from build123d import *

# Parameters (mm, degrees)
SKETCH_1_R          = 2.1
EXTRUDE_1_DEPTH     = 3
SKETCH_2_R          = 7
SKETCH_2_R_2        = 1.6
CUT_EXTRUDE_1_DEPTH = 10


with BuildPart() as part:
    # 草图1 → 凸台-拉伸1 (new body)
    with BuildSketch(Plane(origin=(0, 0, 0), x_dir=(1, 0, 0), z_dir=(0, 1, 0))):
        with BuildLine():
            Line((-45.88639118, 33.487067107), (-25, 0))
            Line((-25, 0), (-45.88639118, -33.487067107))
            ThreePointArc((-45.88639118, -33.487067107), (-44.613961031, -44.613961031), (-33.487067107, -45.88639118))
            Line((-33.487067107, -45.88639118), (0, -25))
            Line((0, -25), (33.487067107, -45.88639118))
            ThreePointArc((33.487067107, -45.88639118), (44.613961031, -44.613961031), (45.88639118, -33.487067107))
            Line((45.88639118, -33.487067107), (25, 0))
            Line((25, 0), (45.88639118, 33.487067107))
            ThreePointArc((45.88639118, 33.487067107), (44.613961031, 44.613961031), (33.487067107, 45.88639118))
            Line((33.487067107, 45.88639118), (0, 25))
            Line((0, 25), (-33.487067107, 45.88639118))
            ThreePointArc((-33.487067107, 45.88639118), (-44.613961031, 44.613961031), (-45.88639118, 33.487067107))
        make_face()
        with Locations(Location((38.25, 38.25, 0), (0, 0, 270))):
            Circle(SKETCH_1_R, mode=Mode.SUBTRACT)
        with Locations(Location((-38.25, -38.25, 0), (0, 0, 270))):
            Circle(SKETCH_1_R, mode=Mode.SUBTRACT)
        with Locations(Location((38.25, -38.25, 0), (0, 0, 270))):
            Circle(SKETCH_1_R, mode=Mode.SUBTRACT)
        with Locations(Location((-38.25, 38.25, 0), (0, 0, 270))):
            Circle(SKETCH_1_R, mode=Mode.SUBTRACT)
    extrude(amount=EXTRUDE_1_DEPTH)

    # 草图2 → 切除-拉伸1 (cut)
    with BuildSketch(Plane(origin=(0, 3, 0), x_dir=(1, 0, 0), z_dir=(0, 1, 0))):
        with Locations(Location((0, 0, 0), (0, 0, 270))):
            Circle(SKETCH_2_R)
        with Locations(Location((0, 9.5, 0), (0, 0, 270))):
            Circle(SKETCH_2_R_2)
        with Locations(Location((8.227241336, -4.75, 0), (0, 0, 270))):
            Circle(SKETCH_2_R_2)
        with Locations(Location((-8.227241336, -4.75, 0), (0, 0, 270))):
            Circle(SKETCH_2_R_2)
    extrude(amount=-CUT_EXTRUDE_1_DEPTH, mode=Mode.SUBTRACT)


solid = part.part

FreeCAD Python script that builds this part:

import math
import FreeCAD as App
import Part
import Sketcher

V = App.Vector
Q = App.Units.Quantity

doc = App.newDocument("Part")
body = doc.addObject("PartDesign::Body", "Body")

sketch1 = body.newObject("Sketcher::SketchObject", "Sketch")
sketch1.AttachmentSupport = (doc.getObject("XZ_Plane"), [""])
sketch1.MapMode = "FlatFace"
sketch1.addGeometry([
    Part.LineSegment(V(-45.9, -33.5, 0), V(-25, 0, 0)),
    Part.LineSegment(V(-25, 0, 0), V(-45.9, 33.5, 0)),
    Part.ArcOfCircle(Part.Circle(V(-38.3, 38.3, 0), V(0, 0, 1), 9), math.radians(58), math.radians(212)),
    Part.LineSegment(V(-33.5, 45.9, 0), V(0, 25, 0)),
    Part.LineSegment(V(0, 25, 0), V(33.5, 45.9, 0)),
    Part.ArcOfCircle(Part.Circle(V(38.3, 38.3, 0), V(0, 0, 1), 9), math.radians(-32), math.radians(122)),
    Part.LineSegment(V(45.9, 33.5, 0), V(25, 0, 0)),
    Part.LineSegment(V(25, 0, 0), V(45.9, -33.5, 0)),
    Part.ArcOfCircle(Part.Circle(V(38.3, -38.3, 0), V(0, 0, 1), 9), math.radians(-122), math.radians(32)),
    Part.LineSegment(V(33.5, -45.9, 0), V(0, -25, 0)),
    Part.LineSegment(V(0, -25, 0), V(-33.5, -45.9, 0)),
    Part.ArcOfCircle(Part.Circle(V(-38.3, -38.3, 0), V(0, 0, 1), 9), math.radians(148), math.radians(302)),
    Part.Circle(V(-38.2, 38.2, 0), V(0, 0, 1), 2.1),
    Part.Circle(V(38.2, 38.2, 0), V(0, 0, 1), 2.1),
    Part.Circle(V(-38.2, -38.2, 0), V(0, 0, 1), 2.1),
    Part.Circle(V(38.2, -38.2, 0), V(0, 0, 1), 2.1),
], False)
sketch1.addConstraint([
    Sketcher.Constraint("Coincident", 0, 2, 1, 1),
    Sketcher.Constraint("Tangent", 1, 2, 2, 2),
    Sketcher.Constraint("Tangent", 2, 1, 3, 1),
    Sketcher.Constraint("Coincident", 3, 2, 4, 1),
    Sketcher.Constraint("Tangent", 4, 2, 5, 2),
    Sketcher.Constraint("Tangent", 5, 1, 6, 1),
    Sketcher.Constraint("Coincident", 6, 2, 7, 1),
    Sketcher.Constraint("Tangent", 7, 2, 8, 2),
    Sketcher.Constraint("Tangent", 8, 1, 9, 1),
    Sketcher.Constraint("Coincident", 9, 2, 10, 1),
    Sketcher.Constraint("Tangent", 10, 2, 11, 2),
    Sketcher.Constraint("Tangent", 11, 1, 0, 1),
    Sketcher.Constraint("Coincident", 12, 3, 2, 3),
    Sketcher.Constraint("Coincident", 13, 3, 5, 3),
    Sketcher.Constraint("Coincident", 14, 3, 11, 3),
    Sketcher.Constraint("Coincident", 15, 3, 8, 3),
    Sketcher.Constraint("Equal", 2, 5),
    Sketcher.Constraint("Equal", 5, 8),
    Sketcher.Constraint("Equal", 8, 11),
    Sketcher.Constraint("Equal", 12, 13),
    Sketcher.Constraint("Equal", 13, 14),
    Sketcher.Constraint("Equal", 14, 15),
    Sketcher.Constraint("Symmetric", 2, 3, 8, 3, -1, 1),
    Sketcher.Constraint("Symmetric", 5, 3, 11, 3, -1, 1),
    Sketcher.Constraint("Symmetric", 0, 2, 6, 2, -1, 1),
    Sketcher.Constraint("Symmetric", 3, 2, 9, 2, -1, 1),
    Sketcher.Constraint("Symmetric", 2, 3, 5, 3, -2),
    Sketcher.Constraint("PointOnObject", 0, 2, -1),
    Sketcher.Constraint("PointOnObject", 3, 2, -2),
    Sketcher.Constraint("Perpendicular", 0, 3),
    Sketcher.Constraint("Equal", 1, 3),
    Sketcher.Constraint("Radius", 2, Q("9 mm")),
    Sketcher.Constraint("Diameter", 12, Q("4.2 mm")),
    Sketcher.Constraint("DistanceX", 0, 2, -1, 1, Q("25 mm")),
    Sketcher.Constraint("DistanceX", 2, 3, 5, 3, Q("76.5 mm")),
])
pad1 = body.newObject("PartDesign::Pad", "Pad")
pad1.Profile = sketch1
pad1.Length = 3
pad1.Reversed = True

sketch2 = body.newObject("Sketcher::SketchObject", "Sketch001")
sketch2.AttachmentSupport = (doc.getObject("XZ_Plane"), [""])
sketch2.MapMode = "FlatFace"
sketch2.AttachmentOffset = App.Placement(V(0, 0, -3), App.Rotation())
sketch2.addGeometry([
    Part.Circle(V(0, 0, 0), V(0, 0, 1), 7),
    Part.Circle(V(0, -9.5, 0), V(0, 0, 1), 1.6),
    Part.Circle(V(8.2, 4.8, 0), V(0, 0, 1), 1.6),
    Part.Circle(V(-8.2, 4.8, 0), V(0, 0, 1), 1.6),
], False)
sketch2.addConstraint([
    Sketcher.Constraint("Coincident", 0, 3, -1, 1),
    Sketcher.Constraint("Equal", 1, 2),
    Sketcher.Constraint("Equal", 2, 3),
    Sketcher.Constraint("Symmetric", 2, 3, 3, 3, -2),
    Sketcher.Constraint("PointOnObject", 1, 3, -2),
    Sketcher.Constraint("Diameter", 0, Q("14 mm")),
    Sketcher.Constraint("Diameter", 1, Q("3.2 mm")),
    Sketcher.Constraint("DistanceY", 1, 3, -1, 1, Q("9.5 mm")),
    Sketcher.Constraint("DistanceY", -1, 1, 2, 3, Q("4.75 mm")),
    Sketcher.Constraint("DistanceX", -1, 1, 2, 3, Q("8.227241 mm")),
])
pocket1 = body.newObject("PartDesign::Pocket", "Pocket")
pocket1.Profile = sketch2
pocket1.Length = 10
pocket1.Reversed = True

doc.recompute()
